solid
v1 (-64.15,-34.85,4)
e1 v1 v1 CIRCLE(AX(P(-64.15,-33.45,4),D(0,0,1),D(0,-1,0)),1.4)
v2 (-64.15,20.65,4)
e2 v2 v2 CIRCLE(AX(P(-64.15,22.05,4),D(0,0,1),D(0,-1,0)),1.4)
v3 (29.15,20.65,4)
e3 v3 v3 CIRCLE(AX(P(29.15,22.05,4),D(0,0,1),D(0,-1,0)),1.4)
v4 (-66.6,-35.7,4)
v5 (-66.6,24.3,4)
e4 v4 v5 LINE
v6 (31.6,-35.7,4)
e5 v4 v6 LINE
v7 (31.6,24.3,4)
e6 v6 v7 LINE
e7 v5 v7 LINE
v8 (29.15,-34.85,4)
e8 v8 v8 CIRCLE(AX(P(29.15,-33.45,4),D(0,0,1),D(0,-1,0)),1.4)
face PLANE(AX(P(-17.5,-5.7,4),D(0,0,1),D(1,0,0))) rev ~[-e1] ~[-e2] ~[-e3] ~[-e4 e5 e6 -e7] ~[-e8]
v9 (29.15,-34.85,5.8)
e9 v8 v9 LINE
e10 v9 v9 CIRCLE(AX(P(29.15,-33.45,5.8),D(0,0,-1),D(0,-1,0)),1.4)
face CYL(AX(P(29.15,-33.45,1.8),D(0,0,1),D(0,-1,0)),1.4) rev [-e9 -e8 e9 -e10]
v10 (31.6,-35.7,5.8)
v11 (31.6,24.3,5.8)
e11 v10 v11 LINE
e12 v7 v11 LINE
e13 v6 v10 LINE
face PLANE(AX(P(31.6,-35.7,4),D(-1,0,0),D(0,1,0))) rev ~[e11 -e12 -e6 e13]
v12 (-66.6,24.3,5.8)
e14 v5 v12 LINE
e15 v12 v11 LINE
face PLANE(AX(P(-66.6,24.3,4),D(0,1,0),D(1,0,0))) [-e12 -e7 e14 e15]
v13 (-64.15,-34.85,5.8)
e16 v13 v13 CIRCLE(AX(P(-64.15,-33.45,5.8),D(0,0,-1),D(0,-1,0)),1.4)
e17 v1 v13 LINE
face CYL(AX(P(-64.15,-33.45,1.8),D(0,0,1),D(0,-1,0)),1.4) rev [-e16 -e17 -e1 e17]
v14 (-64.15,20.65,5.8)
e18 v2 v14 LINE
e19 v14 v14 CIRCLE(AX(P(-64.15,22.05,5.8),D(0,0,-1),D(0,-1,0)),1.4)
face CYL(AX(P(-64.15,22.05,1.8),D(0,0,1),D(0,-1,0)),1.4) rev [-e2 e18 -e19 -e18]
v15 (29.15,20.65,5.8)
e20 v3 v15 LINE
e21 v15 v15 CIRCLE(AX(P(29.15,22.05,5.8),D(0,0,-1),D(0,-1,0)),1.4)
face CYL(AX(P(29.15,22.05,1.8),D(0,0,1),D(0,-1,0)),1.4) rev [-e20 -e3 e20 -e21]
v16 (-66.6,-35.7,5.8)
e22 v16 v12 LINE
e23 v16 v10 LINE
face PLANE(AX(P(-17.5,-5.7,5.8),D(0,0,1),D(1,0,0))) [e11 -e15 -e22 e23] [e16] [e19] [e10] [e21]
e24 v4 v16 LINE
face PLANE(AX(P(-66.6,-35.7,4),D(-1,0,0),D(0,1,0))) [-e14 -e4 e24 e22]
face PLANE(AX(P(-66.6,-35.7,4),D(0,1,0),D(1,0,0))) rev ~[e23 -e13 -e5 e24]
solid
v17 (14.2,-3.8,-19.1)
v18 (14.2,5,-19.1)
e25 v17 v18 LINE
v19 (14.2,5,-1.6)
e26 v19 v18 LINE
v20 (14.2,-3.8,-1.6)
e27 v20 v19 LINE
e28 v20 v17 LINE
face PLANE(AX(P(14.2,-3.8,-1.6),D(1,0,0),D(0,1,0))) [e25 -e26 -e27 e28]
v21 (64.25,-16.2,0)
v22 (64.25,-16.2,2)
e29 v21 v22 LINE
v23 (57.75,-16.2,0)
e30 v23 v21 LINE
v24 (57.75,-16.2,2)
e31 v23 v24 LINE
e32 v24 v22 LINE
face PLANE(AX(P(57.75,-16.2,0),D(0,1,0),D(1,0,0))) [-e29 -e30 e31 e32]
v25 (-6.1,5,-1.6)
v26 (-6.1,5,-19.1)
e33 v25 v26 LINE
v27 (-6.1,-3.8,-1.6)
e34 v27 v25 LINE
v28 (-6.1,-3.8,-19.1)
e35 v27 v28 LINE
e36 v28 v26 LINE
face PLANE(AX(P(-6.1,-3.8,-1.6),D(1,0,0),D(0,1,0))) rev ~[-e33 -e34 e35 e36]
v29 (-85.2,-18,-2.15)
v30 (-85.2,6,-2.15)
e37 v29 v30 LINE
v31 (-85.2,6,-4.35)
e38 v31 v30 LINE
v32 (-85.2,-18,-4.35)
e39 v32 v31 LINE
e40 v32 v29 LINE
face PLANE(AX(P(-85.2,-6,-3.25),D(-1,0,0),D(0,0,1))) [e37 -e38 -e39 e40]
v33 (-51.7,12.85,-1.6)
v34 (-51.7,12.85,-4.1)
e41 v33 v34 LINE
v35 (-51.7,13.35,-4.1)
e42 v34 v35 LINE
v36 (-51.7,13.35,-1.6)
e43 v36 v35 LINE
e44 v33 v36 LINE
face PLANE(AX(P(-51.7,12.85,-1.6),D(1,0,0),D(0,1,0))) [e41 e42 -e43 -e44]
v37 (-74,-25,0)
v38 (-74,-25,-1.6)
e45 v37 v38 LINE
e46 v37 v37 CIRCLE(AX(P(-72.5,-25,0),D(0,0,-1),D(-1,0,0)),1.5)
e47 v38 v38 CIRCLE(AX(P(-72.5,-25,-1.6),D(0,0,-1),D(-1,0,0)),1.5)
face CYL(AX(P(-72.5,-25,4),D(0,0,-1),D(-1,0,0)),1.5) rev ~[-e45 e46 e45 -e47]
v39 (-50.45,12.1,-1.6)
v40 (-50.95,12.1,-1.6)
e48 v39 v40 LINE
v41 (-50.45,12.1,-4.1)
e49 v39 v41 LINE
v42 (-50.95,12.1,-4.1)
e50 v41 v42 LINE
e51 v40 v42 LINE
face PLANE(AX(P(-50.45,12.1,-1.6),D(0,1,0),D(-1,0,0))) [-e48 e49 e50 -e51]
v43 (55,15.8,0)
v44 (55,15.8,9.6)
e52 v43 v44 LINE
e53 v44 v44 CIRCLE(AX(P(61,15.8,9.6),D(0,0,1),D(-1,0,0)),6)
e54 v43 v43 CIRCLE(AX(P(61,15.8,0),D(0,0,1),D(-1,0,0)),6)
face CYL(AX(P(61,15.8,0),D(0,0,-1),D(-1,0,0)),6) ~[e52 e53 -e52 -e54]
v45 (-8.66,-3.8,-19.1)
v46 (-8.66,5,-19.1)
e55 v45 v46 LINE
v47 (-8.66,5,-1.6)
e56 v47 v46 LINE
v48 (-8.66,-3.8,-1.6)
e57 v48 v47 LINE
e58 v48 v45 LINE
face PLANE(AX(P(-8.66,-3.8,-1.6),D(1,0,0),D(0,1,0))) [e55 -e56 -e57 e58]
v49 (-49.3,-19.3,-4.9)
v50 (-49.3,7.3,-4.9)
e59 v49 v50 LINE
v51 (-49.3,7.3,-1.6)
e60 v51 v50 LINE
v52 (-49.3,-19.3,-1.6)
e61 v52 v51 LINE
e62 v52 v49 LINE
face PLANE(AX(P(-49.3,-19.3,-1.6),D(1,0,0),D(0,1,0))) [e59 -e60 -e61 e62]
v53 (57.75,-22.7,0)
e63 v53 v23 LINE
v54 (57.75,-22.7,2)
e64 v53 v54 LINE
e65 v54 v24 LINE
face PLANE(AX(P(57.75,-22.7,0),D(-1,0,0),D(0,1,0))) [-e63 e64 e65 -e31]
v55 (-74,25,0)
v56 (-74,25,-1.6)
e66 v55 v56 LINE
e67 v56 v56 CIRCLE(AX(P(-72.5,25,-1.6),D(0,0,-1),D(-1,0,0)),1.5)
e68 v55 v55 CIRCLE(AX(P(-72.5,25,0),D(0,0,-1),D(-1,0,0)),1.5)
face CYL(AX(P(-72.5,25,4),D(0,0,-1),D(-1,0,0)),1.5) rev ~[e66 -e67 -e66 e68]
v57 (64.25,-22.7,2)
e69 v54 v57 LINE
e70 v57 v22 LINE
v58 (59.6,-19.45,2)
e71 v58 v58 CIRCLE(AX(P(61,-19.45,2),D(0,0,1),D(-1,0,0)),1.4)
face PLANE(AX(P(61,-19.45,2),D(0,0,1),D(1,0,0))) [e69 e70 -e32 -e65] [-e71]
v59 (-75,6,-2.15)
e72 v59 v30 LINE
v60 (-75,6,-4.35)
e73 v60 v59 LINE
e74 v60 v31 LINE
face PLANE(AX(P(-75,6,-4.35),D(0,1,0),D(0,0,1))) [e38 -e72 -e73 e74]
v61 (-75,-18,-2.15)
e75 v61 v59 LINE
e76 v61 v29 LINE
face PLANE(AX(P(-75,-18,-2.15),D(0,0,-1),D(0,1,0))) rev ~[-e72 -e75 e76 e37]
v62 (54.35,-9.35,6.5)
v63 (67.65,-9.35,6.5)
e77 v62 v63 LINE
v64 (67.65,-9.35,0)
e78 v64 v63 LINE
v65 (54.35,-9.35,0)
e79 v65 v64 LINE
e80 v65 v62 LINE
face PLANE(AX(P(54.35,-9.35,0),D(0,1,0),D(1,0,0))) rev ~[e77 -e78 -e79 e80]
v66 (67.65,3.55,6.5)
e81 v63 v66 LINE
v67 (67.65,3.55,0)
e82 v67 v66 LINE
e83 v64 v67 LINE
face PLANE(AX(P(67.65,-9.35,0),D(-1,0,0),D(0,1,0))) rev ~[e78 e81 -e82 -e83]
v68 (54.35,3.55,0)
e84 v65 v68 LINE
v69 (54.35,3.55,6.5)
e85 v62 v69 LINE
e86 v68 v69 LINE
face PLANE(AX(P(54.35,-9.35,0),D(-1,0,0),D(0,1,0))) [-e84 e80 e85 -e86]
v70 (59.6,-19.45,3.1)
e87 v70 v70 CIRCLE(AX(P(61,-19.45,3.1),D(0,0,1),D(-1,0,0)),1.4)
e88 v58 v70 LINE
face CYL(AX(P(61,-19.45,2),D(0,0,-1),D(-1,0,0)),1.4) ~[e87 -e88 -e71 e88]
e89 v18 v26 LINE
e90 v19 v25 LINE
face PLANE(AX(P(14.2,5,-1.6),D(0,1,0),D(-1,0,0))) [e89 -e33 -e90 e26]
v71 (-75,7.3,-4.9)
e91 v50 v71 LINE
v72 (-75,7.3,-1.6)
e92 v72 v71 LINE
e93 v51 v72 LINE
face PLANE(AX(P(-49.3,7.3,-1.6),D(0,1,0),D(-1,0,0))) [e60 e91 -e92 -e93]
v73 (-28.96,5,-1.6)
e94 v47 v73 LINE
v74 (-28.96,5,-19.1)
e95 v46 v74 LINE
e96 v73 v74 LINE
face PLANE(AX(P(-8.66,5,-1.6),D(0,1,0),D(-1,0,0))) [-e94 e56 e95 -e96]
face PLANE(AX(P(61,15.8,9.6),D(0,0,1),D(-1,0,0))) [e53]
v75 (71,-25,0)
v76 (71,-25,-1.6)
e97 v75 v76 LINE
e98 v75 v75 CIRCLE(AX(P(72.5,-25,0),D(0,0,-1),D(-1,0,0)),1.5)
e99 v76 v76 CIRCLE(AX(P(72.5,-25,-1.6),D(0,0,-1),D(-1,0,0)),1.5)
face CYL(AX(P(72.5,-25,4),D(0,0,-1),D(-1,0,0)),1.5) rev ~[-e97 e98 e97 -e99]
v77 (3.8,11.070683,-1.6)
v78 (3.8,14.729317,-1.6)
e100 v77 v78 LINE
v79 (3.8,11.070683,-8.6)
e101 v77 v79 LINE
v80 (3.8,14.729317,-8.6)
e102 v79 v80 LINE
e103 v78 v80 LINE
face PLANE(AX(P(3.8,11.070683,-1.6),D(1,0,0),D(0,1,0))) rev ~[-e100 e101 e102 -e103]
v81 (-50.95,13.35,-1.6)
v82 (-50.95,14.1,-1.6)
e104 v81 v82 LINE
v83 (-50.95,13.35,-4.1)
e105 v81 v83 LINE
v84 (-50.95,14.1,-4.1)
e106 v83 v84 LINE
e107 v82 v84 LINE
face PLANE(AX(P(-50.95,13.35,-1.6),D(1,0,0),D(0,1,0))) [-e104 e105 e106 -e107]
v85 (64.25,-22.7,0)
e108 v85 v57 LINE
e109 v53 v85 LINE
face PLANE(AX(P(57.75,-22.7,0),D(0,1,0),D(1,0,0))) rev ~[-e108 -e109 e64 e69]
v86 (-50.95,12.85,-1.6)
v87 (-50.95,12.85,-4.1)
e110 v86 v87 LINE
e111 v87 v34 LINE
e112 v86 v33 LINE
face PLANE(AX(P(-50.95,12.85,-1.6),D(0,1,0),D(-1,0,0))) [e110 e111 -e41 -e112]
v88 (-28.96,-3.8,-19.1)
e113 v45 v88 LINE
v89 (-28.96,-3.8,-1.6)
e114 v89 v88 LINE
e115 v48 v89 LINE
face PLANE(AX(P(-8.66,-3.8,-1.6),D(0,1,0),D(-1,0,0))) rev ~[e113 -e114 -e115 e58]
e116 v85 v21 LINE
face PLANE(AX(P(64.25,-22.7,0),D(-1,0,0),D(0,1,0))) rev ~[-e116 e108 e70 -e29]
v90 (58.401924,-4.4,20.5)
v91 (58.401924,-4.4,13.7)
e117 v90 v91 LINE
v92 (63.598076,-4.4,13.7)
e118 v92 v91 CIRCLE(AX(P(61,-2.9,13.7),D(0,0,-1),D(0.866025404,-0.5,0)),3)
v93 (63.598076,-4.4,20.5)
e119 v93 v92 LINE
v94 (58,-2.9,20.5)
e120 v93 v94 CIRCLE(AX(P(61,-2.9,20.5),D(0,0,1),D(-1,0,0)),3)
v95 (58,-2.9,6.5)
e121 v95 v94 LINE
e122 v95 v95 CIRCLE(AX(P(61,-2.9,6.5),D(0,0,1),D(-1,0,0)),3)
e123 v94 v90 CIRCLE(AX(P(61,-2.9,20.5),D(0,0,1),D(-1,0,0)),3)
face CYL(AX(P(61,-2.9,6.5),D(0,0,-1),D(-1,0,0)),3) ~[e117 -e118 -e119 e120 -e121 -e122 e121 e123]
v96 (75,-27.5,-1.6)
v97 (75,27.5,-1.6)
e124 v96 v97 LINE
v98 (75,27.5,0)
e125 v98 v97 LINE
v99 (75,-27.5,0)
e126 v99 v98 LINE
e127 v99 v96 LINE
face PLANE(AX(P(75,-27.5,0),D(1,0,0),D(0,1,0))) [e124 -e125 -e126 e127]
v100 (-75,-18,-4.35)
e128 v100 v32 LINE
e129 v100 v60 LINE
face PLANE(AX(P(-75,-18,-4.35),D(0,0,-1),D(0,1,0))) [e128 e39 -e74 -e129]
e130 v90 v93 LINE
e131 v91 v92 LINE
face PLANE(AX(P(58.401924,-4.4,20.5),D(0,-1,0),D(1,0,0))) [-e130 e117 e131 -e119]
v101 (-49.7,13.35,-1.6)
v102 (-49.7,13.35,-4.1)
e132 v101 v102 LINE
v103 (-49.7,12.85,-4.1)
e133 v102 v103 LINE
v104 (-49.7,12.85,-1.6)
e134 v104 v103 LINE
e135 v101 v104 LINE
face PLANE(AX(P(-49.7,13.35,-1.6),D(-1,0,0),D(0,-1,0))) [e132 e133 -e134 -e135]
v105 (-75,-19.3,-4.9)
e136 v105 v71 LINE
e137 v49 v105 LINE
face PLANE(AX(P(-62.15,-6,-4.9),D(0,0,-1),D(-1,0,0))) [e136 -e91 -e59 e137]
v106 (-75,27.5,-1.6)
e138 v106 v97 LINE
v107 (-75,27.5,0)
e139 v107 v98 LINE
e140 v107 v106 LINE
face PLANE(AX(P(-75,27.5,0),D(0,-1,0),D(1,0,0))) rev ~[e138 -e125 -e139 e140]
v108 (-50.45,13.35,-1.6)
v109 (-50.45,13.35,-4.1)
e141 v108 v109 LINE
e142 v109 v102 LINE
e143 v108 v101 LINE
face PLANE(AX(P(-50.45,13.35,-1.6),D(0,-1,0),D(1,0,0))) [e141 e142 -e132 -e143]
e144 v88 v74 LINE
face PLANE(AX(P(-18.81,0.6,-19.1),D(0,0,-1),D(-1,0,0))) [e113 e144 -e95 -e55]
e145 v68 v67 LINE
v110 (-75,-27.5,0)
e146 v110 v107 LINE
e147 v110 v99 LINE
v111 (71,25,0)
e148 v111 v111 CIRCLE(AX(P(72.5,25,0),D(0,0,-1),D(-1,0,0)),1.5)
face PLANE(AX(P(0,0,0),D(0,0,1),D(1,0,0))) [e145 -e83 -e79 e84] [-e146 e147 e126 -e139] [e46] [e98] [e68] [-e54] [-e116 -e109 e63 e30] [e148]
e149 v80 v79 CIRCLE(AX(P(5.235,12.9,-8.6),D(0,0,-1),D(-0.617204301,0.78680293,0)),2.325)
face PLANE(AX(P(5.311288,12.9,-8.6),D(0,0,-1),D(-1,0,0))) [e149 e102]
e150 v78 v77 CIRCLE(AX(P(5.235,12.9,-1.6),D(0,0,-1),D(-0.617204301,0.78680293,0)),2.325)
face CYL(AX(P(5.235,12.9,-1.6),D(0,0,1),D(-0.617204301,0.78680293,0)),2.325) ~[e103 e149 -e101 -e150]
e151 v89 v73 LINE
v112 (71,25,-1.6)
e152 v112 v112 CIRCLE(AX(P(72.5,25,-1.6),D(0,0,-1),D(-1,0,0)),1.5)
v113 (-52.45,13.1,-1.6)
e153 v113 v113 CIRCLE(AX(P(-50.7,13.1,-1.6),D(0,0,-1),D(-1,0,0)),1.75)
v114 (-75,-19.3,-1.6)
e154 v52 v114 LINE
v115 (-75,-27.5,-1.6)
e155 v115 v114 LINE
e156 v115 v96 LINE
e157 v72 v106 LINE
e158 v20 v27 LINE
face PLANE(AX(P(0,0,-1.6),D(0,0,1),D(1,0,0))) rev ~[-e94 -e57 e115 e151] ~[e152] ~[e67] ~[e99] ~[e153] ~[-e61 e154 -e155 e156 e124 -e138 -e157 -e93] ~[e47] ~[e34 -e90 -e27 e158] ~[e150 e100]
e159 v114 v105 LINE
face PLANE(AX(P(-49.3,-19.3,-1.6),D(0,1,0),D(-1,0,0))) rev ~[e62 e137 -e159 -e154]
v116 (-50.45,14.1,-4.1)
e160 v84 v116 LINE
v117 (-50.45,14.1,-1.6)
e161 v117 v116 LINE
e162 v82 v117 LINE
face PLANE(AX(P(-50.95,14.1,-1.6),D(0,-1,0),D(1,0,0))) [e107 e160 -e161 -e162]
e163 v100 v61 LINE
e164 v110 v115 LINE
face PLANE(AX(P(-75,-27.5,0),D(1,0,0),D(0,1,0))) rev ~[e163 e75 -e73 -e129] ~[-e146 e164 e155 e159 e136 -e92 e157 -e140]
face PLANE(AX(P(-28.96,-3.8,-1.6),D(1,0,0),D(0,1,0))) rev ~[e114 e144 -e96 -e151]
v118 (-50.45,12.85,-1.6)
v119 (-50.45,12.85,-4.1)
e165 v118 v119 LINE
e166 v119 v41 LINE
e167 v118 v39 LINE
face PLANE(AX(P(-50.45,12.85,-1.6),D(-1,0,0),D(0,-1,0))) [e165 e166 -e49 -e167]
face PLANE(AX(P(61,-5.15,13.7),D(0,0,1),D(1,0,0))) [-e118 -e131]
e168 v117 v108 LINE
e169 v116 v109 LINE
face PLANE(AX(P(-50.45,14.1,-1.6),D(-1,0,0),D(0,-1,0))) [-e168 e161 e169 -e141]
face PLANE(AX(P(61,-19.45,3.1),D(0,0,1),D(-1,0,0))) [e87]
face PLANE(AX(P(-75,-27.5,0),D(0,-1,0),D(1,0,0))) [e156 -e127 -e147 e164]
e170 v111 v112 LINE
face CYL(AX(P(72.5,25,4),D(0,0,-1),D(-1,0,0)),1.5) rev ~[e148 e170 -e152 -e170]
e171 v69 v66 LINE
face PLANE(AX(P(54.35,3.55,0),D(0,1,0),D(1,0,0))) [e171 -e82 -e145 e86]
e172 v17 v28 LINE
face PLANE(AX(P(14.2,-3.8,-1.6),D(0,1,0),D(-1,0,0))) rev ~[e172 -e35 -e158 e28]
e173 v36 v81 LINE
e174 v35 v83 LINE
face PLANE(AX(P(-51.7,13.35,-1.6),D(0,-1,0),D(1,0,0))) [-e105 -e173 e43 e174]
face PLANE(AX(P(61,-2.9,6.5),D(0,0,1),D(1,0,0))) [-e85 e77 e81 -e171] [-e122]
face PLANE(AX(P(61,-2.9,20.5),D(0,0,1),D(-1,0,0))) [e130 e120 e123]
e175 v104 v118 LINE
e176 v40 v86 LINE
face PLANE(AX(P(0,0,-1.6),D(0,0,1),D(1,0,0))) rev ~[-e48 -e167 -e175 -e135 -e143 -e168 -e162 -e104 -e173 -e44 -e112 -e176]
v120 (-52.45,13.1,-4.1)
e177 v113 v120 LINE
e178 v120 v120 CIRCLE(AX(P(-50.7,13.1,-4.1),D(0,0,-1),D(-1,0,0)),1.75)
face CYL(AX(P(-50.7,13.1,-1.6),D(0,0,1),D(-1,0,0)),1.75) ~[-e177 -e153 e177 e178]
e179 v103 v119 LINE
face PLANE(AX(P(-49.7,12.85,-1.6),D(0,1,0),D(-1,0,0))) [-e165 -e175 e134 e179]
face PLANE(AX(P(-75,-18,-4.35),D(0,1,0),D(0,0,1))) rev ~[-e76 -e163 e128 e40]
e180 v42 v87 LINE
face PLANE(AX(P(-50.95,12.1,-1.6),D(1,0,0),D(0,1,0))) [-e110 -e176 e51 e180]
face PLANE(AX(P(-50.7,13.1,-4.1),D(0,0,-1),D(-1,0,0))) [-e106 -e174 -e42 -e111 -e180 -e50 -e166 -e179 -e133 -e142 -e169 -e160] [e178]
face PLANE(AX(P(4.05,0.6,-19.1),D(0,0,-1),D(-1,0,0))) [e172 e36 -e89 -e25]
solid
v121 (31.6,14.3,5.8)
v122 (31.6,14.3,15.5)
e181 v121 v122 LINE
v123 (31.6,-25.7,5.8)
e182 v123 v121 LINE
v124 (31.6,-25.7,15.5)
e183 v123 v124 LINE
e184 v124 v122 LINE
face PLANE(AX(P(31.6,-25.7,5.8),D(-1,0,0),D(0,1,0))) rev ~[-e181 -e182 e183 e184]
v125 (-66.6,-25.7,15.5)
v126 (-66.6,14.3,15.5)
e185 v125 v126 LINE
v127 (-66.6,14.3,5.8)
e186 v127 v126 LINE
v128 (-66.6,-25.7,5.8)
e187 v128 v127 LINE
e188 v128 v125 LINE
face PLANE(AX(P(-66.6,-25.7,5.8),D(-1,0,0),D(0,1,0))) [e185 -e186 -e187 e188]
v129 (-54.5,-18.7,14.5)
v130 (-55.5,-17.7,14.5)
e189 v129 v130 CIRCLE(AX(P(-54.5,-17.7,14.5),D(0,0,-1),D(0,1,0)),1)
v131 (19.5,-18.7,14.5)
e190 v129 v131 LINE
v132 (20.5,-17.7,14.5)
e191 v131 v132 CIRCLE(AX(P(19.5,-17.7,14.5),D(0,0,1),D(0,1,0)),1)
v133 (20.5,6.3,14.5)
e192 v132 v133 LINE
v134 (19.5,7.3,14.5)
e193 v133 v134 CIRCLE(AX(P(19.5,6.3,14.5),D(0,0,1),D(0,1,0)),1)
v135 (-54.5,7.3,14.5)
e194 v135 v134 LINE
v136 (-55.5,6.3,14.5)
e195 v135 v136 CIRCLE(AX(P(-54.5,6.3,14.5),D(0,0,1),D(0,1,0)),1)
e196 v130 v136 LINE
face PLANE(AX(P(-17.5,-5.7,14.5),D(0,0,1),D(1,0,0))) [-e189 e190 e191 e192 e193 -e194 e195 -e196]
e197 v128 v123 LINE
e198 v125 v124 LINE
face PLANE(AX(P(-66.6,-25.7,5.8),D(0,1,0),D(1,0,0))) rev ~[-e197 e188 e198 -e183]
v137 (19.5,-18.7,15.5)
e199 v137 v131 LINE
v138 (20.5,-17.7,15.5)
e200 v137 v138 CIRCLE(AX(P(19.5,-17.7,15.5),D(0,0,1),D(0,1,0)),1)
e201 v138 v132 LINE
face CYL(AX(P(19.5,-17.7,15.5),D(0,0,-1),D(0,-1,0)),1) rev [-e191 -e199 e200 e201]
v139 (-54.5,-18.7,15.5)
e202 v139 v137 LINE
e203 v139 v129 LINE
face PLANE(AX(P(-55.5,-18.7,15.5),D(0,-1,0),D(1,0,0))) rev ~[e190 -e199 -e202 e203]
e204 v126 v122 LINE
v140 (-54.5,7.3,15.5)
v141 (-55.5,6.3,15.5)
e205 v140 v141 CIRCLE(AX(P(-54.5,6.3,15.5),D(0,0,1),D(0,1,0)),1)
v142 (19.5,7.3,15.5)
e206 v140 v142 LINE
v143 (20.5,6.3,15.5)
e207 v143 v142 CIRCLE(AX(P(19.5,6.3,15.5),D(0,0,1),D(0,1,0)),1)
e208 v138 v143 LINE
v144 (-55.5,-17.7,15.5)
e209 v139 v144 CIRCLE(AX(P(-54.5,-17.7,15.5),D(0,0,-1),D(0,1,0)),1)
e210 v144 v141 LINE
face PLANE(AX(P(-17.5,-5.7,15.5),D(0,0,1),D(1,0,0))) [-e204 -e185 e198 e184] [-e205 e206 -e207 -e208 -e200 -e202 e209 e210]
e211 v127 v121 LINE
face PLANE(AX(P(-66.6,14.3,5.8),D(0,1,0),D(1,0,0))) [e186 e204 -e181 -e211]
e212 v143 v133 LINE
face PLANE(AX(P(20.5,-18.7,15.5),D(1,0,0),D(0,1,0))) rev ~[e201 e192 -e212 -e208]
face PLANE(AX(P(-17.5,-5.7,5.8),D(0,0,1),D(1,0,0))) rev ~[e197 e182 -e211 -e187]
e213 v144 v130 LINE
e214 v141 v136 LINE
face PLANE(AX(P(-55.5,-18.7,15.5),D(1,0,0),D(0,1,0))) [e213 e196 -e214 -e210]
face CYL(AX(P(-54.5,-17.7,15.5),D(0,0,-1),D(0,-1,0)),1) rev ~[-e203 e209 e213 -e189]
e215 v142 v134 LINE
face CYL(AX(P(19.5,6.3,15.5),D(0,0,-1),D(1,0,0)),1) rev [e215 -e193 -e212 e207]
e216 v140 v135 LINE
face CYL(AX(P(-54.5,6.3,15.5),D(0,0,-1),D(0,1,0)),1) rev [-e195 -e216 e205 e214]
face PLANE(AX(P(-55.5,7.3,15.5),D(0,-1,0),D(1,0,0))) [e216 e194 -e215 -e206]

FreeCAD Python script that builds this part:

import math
import FreeCAD as App
import Part
import Sketcher
from FreeCAD import Vector
Q = App.Units.Quantity


def edges_at(feature, points):
    """Names of the edges that pass closest to the given points."""
    edges = feature.Shape.Edges
    near = lambda p: min(range(len(edges)), key=lambda i: edges[i].distToShape(Part.Vertex(*p))[0])
    return sorted({f"Edge{near(p) + 1}" for p in points})

doc = App.newDocument("Part")
body = doc.addObject("PartDesign::Body", "Body")

sketch1 = body.newObject("Sketcher::SketchObject", "Sketch")
sketch1.AttachmentSupport = (doc.getObject("XY_Plane"), [""])
sketch1.MapMode = "FlatFace"
sketch1.addGeometry(Part.LineSegment(Vector(-75, 28, 0), Vector(-75, -28, 0)), False)
sketch1.addGeometry(Part.LineSegment(Vector(-75, -28, 0), Vector(75, -28, 0)), False)
sketch1.addGeometry(Part.LineSegment(Vector(75, -28, 0), Vector(75, 28, 0)), False)
sketch1.addGeometry(Part.LineSegment(Vector(75, 28, 0), Vector(-75, 28, 0)), False)
sketch1.addConstraint(Sketcher.Constraint("Coincident", 0, 2, 1, 1))
sketch1.addConstraint(Sketcher.Constraint("Coincident", 1, 2, 2, 1))
sketch1.addConstraint(Sketcher.Constraint("Coincident", 2, 2, 3, 1))
sketch1.addConstraint(Sketcher.Constraint("Coincident", 3, 2, 0, 1))
sketch1.addConstraint(Sketcher.Constraint("Vertical", 0))
sketch1.addConstraint(Sketcher.Constraint("Horizontal", 1))
sketch1.addConstraint(Sketcher.Constraint("Vertical", 2))
sketch1.addConstraint(Sketcher.Constraint("Horizontal", 3))
sketch1.addConstraint(Sketcher.Constraint("Symmetric", 0, 2, 2, 2, -1, 1))
sketch1.addConstraint(Sketcher.Constraint("DistanceX", 1, 1, 1, 2, 150.0))
sketch1.addConstraint(Sketcher.Constraint("DistanceY", 0, 2, 0, 1, 55.0))
pad1 = body.newObject("PartDesign::Pad", "Pad")
pad1.Profile = sketch1
pad1.Length = 1.6
pad1.Reversed = True

sketch2 = body.newObject("Sketcher::SketchObject", "Sketch001")
sketch2.AttachmentSupport = (doc.getObject("XY_Plane"), [""])
sketch2.MapMode = "FlatFace"
sketch2.addGeometry(Part.Circle(Vector(-72.5, 25, 0), Vector(0, 0, 1), 1.5), False)
sketch2.addGeometry(Part.Circle(Vector(72.5, 25, 0), Vector(0, 0, 1), 1.5), False)
sketch2.addGeometry(Part.Circle(Vector(72.5, -25, 0), Vector(0, 0, 1), 1.5), False)
sketch2.addGeometry(Part.Circle(Vector(-72.5, -25, 0), Vector(0, 0, 1), 1.5), False)
sketch2.addConstraint(Sketcher.Constraint("Equal", 0, 1))
sketch2.addConstraint(Sketcher.Constraint("Equal", 1, 2))
sketch2.addConstraint(Sketcher.Constraint("Equal", 2, 3))
sketch2.addConstraint(Sketcher.Constraint("Symmetric", 0, 3, 2, 3, -1, 1))
sketch2.addConstraint(Sketcher.Constraint("Symmetric", 1, 3, 3, 3, -1, 1))
sketch2.addConstraint(Sketcher.Constraint("Symmetric", 0, 3, 1, 3, -2))
sketch2.addConstraint(Sketcher.Constraint("Diameter", 0, 3.0))
sketch2.addConstraint(Sketcher.Constraint("DistanceY", -1, 1, 0, 3, 25.0))
sketch2.addConstraint(Sketcher.Constraint("DistanceX", 0, 3, 1, 3, 145.0))
doc.recompute()
hole = body.newObject("PartDesign::Hole", "Hole")
hole.Profile = sketch2
hole.ThreadType = "None"
hole.Diameter = 3
hole.DepthType = "Dimension"
hole.Depth = 4
hole.DrillPoint = "Angled"
hole.DrillPointAngle = 118

sketch3 = body.newObject("Sketcher::SketchObject", "Sketch002")
sketch3.AttachmentSupport = (doc.getObject("XY_Plane"), [""])
sketch3.MapMode = "FlatFace"
sketch3.AttachmentOffset = App.Placement(Vector(0, 0, -1.6), App.Rotation())
sketch3.addGeometry(Part.LineSegment(Vector(14, 5, 0), Vector(14, -4, 0)), False)
sketch3.addGeometry(Part.LineSegment(Vector(14, -4, 0), Vector(-6, -4, 0)), False)
sketch3.addGeometry(Part.LineSegment(Vector(-6, -4, 0), Vector(-6, 5, 0)), False)
sketch3.addGeometry(Part.LineSegment(Vector(-6, 5, 0), Vector(14, 5, 0)), False)
sketch3.addConstraint(Sketcher.Constraint("Coincident", 0, 2, 1, 1))
sketch3.addConstraint(Sketcher.Constraint("Coincident", 1, 2, 2, 1))
sketch3.addConstraint(Sketcher.Constraint("Coincident", 2, 2, 3, 1))
sketch3.addConstraint(Sketcher.Constraint("Coincident", 3, 2, 0, 1))
sketch3.addConstraint(Sketcher.Constraint("Vertical", 0))
sketch3.addConstraint(Sketcher.Constraint("Horizontal", 1))
sketch3.addConstraint(Sketcher.Constraint("Vertical", 2))
sketch3.addConstraint(Sketcher.Constraint("Horizontal", 3))
sketch3.addConstraint(Sketcher.Constraint("DistanceX", 1, 2, 1, 1, 20.3))
sketch3.addConstraint(Sketcher.Constraint("DistanceY", 0, 2, 0, 1, 8.8))
sketch3.addConstraint(Sketcher.Constraint("DistanceY", -1, 1, 2, 2, 5.0))
sketch3.addConstraint(Sketcher.Constraint("DistanceX", -1, 1, 0, 2, 14.2))
pad2 = body.newObject("PartDesign::Pad", "Pad001")
pad2.Profile = sketch3
pad2.Length = 17.5
pad2.Reversed = True
doc.recompute()

linearpattern = body.newObject("PartDesign::LinearPattern", "LinearPattern")
linearpattern.Originals = [pad2]
linearpattern.Direction = (doc.getObject("X_Axis"), [""])
linearpattern.Mode = "offset"
linearpattern.Offset = 22.86
linearpattern.Occurrences = 2
linearpattern.Reversed = True
body.Tip = linearpattern
body2 = doc.addObject("PartDesign::Body", "Body001")

sketch4 = body2.newObject("Sketcher::SketchObject", "Sketch003")
sketch4.AttachmentSupport = (doc.getObject("XY_Plane001"), [""])
sketch4.MapMode = "FlatFace"
sketch4.AttachmentOffset = App.Placement(Vector(0, 0, -1.6), App.Rotation())
sketch4.addGeometry(Part.LineSegment(Vector(-49, 7, 0), Vector(-49, -19, 0)), False)
sketch4.addGeometry(Part.LineSegment(Vector(-49, -19, 0), Vector(-75, -19, 0)), False)
sketch4.addGeometry(Part.LineSegment(Vector(-75, -19, 0), Vector(-75, 7, 0)), False)
sketch4.addGeometry(Part.LineSegment(Vector(-75, 7, 0), Vector(-49, 7, 0)), False)
sketch4.addConstraint(Sketcher.Constraint("Coincident", 0, 2, 1, 1))
sketch4.addConstraint(Sketcher.Constraint("Coincident", 1, 2, 2, 1))
sketch4.addConstraint(Sketcher.Constraint("Coincident", 2, 2, 3, 1))
sketch4.addConstraint(Sketcher.Constraint("Coincident", 3, 2, 0, 1))
sketch4.addConstraint(Sketcher.Constraint("Vertical", 0))
sketch4.addConstraint(Sketcher.Constraint("Horizontal", 1))
sketch4.addConstraint(Sketcher.Constraint("Vertical", 2))
sketch4.addConstraint(Sketcher.Constraint("Horizontal", 3))
sketch4.addConstraint(Sketcher.Constraint("DistanceX", 1, 2, 1, 1, 25.7))
sketch4.addConstraint(Sketcher.Constraint("DistanceY", 0, 2, 0, 1, 26.6))
sketch4.addConstraint(Sketcher.Constraint("DistanceX", 1, 2, -1, 1, 75.0))
sketch4.addConstraint(Sketcher.Constraint("DistanceY", 0, 2, -1, 1, 19.3))
pad3 = body2.newObject("PartDesign::Pad", "Pad002")
pad3.Profile = sketch4
pad3.Length = 3.3
pad3.Reversed = True
doc.recompute()

boolean = body.newObject("PartDesign::Boolean", "Boolean")
boolean.Type = "Fuse"
boolean.addObjects([body2])

sketch5 = body.newObject("Sketcher::SketchObject", "Sketch004")
sketch5.AttachmentSupport = (doc.getObject("YZ_Plane"), [""])
sketch5.MapMode = "FlatFace"
sketch5.AttachmentOffset = App.Placement(Vector(0, 0, -75), App.Rotation())
sketch5.addGeometry(Part.LineSegment(Vector(6, -4.3, 0), Vector(-18, -4.3, 0)), False)
sketch5.addGeometry(Part.LineSegment(Vector(-18, -4.3, 0), Vector(-18, -2.1, 0)), False)
sketch5.addGeometry(Part.LineSegment(Vector(-18, -2.1, 0), Vector(6, -2.1, 0)), False)
sketch5.addGeometry(Part.LineSegment(Vector(6, -2.1, 0), Vector(6, -4.3, 0)), False)
sketch5.addConstraint(Sketcher.Constraint("Coincident", 0, 2, 1, 1))
sketch5.addConstraint(Sketcher.Constraint("Coincident", 1, 2, 2, 1))
sketch5.addConstraint(Sketcher.Constraint("Coincident", 2, 2, 3, 1))
sketch5.addConstraint(Sketcher.Constraint("Coincident", 3, 2, 0, 1))
sketch5.addConstraint(Sketcher.Constraint("Horizontal", 0))
sketch5.addConstraint(Sketcher.Constraint("Vertical", 1))
sketch5.addConstraint(Sketcher.Constraint("Horizontal", 2))
sketch5.addConstraint(Sketcher.Constraint("Vertical", 3))
sketch5.addConstraint(Sketcher.Constraint("DistanceX", 0, 2, 0, 1, 24.0))
sketch5.addConstraint(Sketcher.Constraint("DistanceY", 1, 1, 1, 2, 2.2))
sketch5.addConstraint(Sketcher.Constraint("DistanceX", 0, 2, -1, 1, 18.0))
sketch5.addConstraint(Sketcher.Constraint("DistanceY", 0, 2, -1, 1, 4.35))
pad4 = body.newObject("PartDesign::Pad", "Pad003")
pad4.Profile = sketch5
pad4.Length = 10.2
pad4.Reversed = True

sketch6 = body.newObject("Sketcher::SketchObject", "Sketch005")
sketch6.AttachmentSupport = (doc.getObject("XY_Plane"), [""])
sketch6.MapMode = "FlatFace"
sketch6.AttachmentOffset = App.Placement(Vector(0, 0, -1.6), App.Rotation())
sketch6.addGeometry(Part.Circle(Vector(-50.7, 13.1, 0), Vector(0, 0, 1), 1.8), False)
sketch6.addGeometry(Part.LineSegment(Vector(-51.7, 12.8, 0), Vector(-51, 12.8, 0)), False)
sketch6.addGeometry(Part.LineSegment(Vector(-51, 12.8, 0), Vector(-51, 12.1, 0)), False)
sketch6.addGeometry(Part.LineSegment(Vector(-51, 12.1, 0), Vector(-50.5, 12.1, 0)), False)
sketch6.addGeometry(Part.LineSegment(Vector(-50.5, 12.1, 0), Vector(-50.5, 12.8, 0)), False)
sketch6.addGeometry(Part.LineSegment(Vector(-50.5, 12.8, 0), Vector(-49.7, 12.8, 0)), False)
sketch6.addGeometry(Part.LineSegment(Vector(-49.7, 12.8, 0), Vector(-49.7, 13.3, 0)), False)
sketch6.addGeometry(Part.LineSegment(Vector(-49.7, 13.3, 0), Vector(-50.5, 13.3, 0)), False)
sketch6.addGeometry(Part.LineSegment(Vector(-50.5, 13.3, 0), Vector(-50.5, 14.1, 0)), False)
sketch6.addGeometry(Part.LineSegment(Vector(-50.5, 14.1, 0), Vector(-51, 14.1, 0)), False)
sketch6.addGeometry(Part.LineSegment(Vector(-51, 14.1, 0), Vector(-51, 13.3, 0)), False)
sketch6.addGeometry(Part.LineSegment(Vector(-51, 13.3, 0), Vector(-51.7, 13.3, 0)), False)
sketch6.addGeometry(Part.LineSegment(Vector(-51.7, 13.3, 0), Vector(-51.7, 12.8, 0)), False)
sketch6.addConstraint(Sketcher.Constraint("Coincident", 1, 2, 2, 1))
sketch6.addConstraint(Sketcher.Constraint("Coincident", 2, 2, 3, 1))
sketch6.addConstraint(Sketcher.Constraint("Coincident", 3, 2, 4, 1))
sketch6.addConstraint(Sketcher.Constraint("Coincident", 4, 2, 5, 1))
sketch6.addConstraint(Sketcher.Constraint("Coincident", 5, 2, 6, 1))
sketch6.addConstraint(Sketcher.Constraint("Coincident", 6, 2, 7, 1))
sketch6.addConstraint(Sketcher.Constraint("Coincident", 7, 2, 8, 1))
sketch6.addConstraint(Sketcher.Constraint("Coincident", 8, 2, 9, 1))
sketch6.addConstraint(Sketcher.Constraint("Coincident", 9, 2, 10, 1))
sketch6.addConstraint(Sketcher.Constraint("Coincident", 10, 2, 11, 1))
sketch6.addConstraint(Sketcher.Constraint("Coincident", 11, 2, 12, 1))
sketch6.addConstraint(Sketcher.Constraint("Coincident", 12, 2, 1, 1))
sketch6.addConstraint(Sketcher.Constraint("Horizontal", 1))
sketch6.addConstraint(Sketcher.Constraint("Vertical", 2))
sketch6.addConstraint(Sketcher.Constraint("Horizontal", 3))
sketch6.addConstraint(Sketcher.Constraint("Vertical", 4))
sketch6.addConstraint(Sketcher.Constraint("Horizontal", 5))
sketch6.addConstraint(Sketcher.Constraint("Vertical", 6))
sketch6.addConstraint(Sketcher.Constraint("Horizontal", 7))
sketch6.addConstraint(Sketcher.Constraint("Vertical", 8))
sketch6.addConstraint(Sketcher.Constraint("Horizontal", 9))
sketch6.addConstraint(Sketcher.Constraint("Vertical", 10))
sketch6.addConstraint(Sketcher.Constraint("Horizontal", 11))
sketch6.addConstraint(Sketcher.Constraint("Vertical", 12))
sketch6.addConstraint(Sketcher.Constraint("Horizontal", 1, 2, 4, 2))
sketch6.addConstraint(Sketcher.Constraint("Horizontal", 7, 2, 10, 2))
sketch6.addConstraint(Sketcher.Constraint("Vertical", 4, 2, 7, 2))
sketch6.addConstraint(Sketcher.Constraint("Vertical", 2, 2, 9, 2))
sketch6.addConstraint(Sketcher.Constraint("Equal", 1, 5))
sketch6.addConstraint(Sketcher.Constraint("Equal", 11, 2))
sketch6.addConstraint(Sketcher.Constraint("Equal", 9, 6))
sketch6.addConstraint(Sketcher.Constraint("Equal", 4, 8))
sketch6.addConstraint(Sketcher.Constraint("Diameter", 0, 3.5))
sketch6.addConstraint(Sketcher.Constraint("DistanceX", 3, 1, 3, 2, 0.5))
sketch6.addConstraint(Sketcher.Constraint("DistanceY", 2, 2, 0, 3, 1.0))
sketch6.addConstraint(Sketcher.Constraint("DistanceX", 0, 3, 5, 2, 1.0))
sketch6.addConstraint(Sketcher.Constraint("DistanceY", 0, 3, 8, 2, 1.0))
sketch6.addConstraint(Sketcher.Constraint("DistanceX", 0, 3, -1, 1, 50.7))
sketch6.addConstraint(Sketcher.Constraint("DistanceY", -1, 1, 0, 3, 13.1))
pad5 = body.newObject("PartDesign::Pad", "Pad004")
pad5.Profile = sketch6
pad5.Length = 2.5
pad5.Reversed = True

sketch7 = body.newObject("Sketcher::SketchObject", "Sketch006")
sketch7.AttachmentSupport = (doc.getObject("XY_Plane"), [""])
sketch7.MapMode = "FlatFace"
sketch7.AttachmentOffset = App.Placement(Vector(0, 0, -1.6), App.Rotation())
sketch7.addGeometry(Part.LineSegment(Vector(3.8, 11.1, 0), Vector(3.8, 14.7, 0)), False)
sketch7.addGeometry(Part.ArcOfCircle(Part.Circle(Vector(5.2, 12.9, 0), Vector(0, 0, 1), 2.3), math.radians(-128), math.radians(128)), False)
sketch7.addConstraint(Sketcher.Constraint("Coincident", 0, 1, 1, 1))
sketch7.addConstraint(Sketcher.Constraint("Coincident", 1, 2, 0, 2))
sketch7.addConstraint(Sketcher.Constraint("Vertical", 0))
sketch7.addConstraint(Sketcher.Constraint("Radius", 1, 2.325))
sketch7.addConstraint(Sketcher.Constraint("DistanceY", -1, 1, 1, 3, 12.9))
sketch7.addConstraint(Sketcher.Constraint("DistanceX", -1, 1, 0, 1, 3.8))
sketch7.addConstraint(Sketcher.Constraint("DistanceX", -1, 1, 1, 3, 5.235))
pad6 = body.newObject("PartDesign::Pad", "Pad005")
pad6.Profile = sketch7
pad6.Length = 7
pad6.Reversed = True

sketch8 = body.newObject("Sketcher::SketchObject", "Sketch007")
sketch8.AttachmentSupport = (doc.getObject("XY_Plane"), [""])
sketch8.MapMode = "FlatFace"
sketch8.addGeometry(Part.Circle(Vector(61, 16, 0), Vector(0, 0, 1), 6), False)
sketch8.addConstraint(Sketcher.Constraint("Diameter", 0, 12.0))
sketch8.addConstraint(Sketcher.Constraint("DistanceX", -1, 1, 0, 3, 61.0))
sketch8.addConstraint(Sketcher.Constraint("DistanceY", -1, 1, 0, 3, 15.8))
pad7 = body.newObject("PartDesign::Pad", "Pad006")
pad7.Profile = sketch8
pad7.Length = 9.6

sketch9 = body.newObject("Sketcher::SketchObject", "Sketch008")
sketch9.AttachmentSupport = (doc.getObject("XY_Plane"), [""])
sketch9.MapMode = "FlatFace"
sketch9.addGeometry(Part.LineSegment(Vector(54, 4, 0), Vector(54, -9, 0)), False)
sketch9.addGeometry(Part.LineSegment(Vector(54, -9, 0), Vector(68, -9, 0)), False)
sketch9.addGeometry(Part.LineSegment(Vector(68, -9, 0), Vector(68, 4, 0)), False)
sketch9.addGeometry(Part.LineSegment(Vector(68, 4, 0), Vector(54, 4, 0)), False)
sketch9.addConstraint(Sketcher.Constraint("Coincident", 0, 2, 1, 1))
sketch9.addConstraint(Sketcher.Constraint("Coincident", 1, 2, 2, 1))
sketch9.addConstraint(Sketcher.Constraint("Coincident", 2, 2, 3, 1))
sketch9.addConstraint(Sketcher.Constraint("Coincident", 3, 2, 0, 1))
sketch9.addConstraint(Sketcher.Constraint("Vertical", 0))
sketch9.addConstraint(Sketcher.Constraint("Horizontal", 1))
sketch9.addConstraint(Sketcher.Constraint("Vertical", 2))
sketch9.addConstraint(Sketcher.Constraint("Horizontal", 3))
sketch9.addConstraint(Sketcher.Constraint("DistanceX", 1, 1, 1, 2, 13.3))
sketch9.addConstraint(Sketcher.Constraint("DistanceY", 0, 2, 0, 1, 12.9))
sketch9.addConstraint(Sketcher.Constraint("DistanceX", -1, 1, 0, 2, 54.35))
sketch9.addConstraint(Sketcher.Constraint("DistanceY", 0, 2, -1, 1, 9.35))
pad8 = body.newObject("PartDesign::Pad", "Pad007")
pad8.Profile = sketch9
pad8.Length = 6.5

sketch10 = body.newObject("Sketcher::SketchObject", "Sketch009")
sketch10.AttachmentSupport = (doc.getObject("XY_Plane"), [""])
sketch10.MapMode = "FlatFace"
sketch10.AttachmentOffset = App.Placement(Vector(0, 0, 6.5), App.Rotation())
sketch10.addGeometry(Part.Circle(Vector(61, -2.9, 0), Vector(0, 0, 1), 3), False)
sketch10.addConstraint(Sketcher.Constraint("Diameter", 0, 6.0))
sketch10.addConstraint(Sketcher.Constraint("DistanceX", -1, 1, 0, 3, 61.0))
sketch10.addConstraint(Sketcher.Constraint("DistanceY", 0, 3, -1, 1, 2.9))
pad9 = body.newObject("PartDesign::Pad", "Pad008")
pad9.Profile = sketch10
pad9.Length = 14

sketch11 = body.newObject("Sketcher::SketchObject", "Sketch010")
sketch11.AttachmentSupport = (doc.getObject("XY_Plane"), [""])
sketch11.MapMode = "FlatFace"
sketch11.AttachmentOffset = App.Placement(Vector(0, 0, 20.5), App.Rotation())
sketch11.addGeometry(Part.LineSegment(Vector(58.4, -4.4, 0), Vector(58.4, -5.9, 0)), False)
sketch11.addGeometry(Part.LineSegment(Vector(58.4, -5.9, 0), Vector(63.6, -5.9, 0)), False)
sketch11.addGeometry(Part.LineSegment(Vector(63.6, -5.9, 0), Vector(63.6, -4.4, 0)), False)
sketch11.addGeometry(Part.LineSegment(Vector(63.6, -4.4, 0), Vector(58.4, -4.4, 0)), False)
sketch11.addConstraint(Sketcher.Constraint("Coincident", 0, 2, 1, 1))
sketch11.addConstraint(Sketcher.Constraint("Coincident", 1, 2, 2, 1))
sketch11.addConstraint(Sketcher.Constraint("Coincident", 2, 2, 3, 1))
sketch11.addConstraint(Sketcher.Constraint("Coincident", 3, 2, 0, 1))
sketch11.addConstraint(Sketcher.Constraint("Vertical", 0))
sketch11.addConstraint(Sketcher.Constraint("Horizontal", 1))
sketch11.addConstraint(Sketcher.Constraint("Vertical", 2))
sketch11.addConstraint(Sketcher.Constraint("Horizontal", 3))
sketch11.addConstraint(Sketcher.Constraint("DistanceY", 0, 2, 0, 1, 1.5))
sketch11.addConstraint(Sketcher.Constraint("DistanceY", 0, 2, -1, 1, 5.9))
sketch11.addConstraint(Sketcher.Constraint("DistanceX", 1, 1, 1, 2, 5.196152))
sketch11.addConstraint(Sketcher.Constraint("DistanceX", -1, 1, 0, 2, 58.401924))
pocket1 = body.newObject("PartDesign::Pocket", "Pocket")
pocket1.Profile = sketch11
pocket1.Length = 6.8

sketch12 = body.newObject("Sketcher::SketchObject", "Sketch011")
sketch12.AttachmentSupport = (doc.getObject("XY_Plane"), [""])
sketch12.MapMode = "FlatFace"
sketch12.addGeometry(Part.LineSegment(Vector(58, -16, 0), Vector(58, -23, 0)), False)
sketch12.addGeometry(Part.LineSegment(Vector(58, -23, 0), Vector(64, -23, 0)), False)
sketch12.addGeometry(Part.LineSegment(Vector(64, -23, 0), Vector(64, -16, 0)), False)
sketch12.addGeometry(Part.LineSegment(Vector(64, -16, 0), Vector(58, -16, 0)), False)
sketch12.addConstraint(Sketcher.Constraint("Coincident", 0, 2, 1, 1))
sketch12.addConstraint(Sketcher.Constraint("Coincident", 1, 2, 2, 1))
sketch12.addConstraint(Sketcher.Constraint("Coincident", 2, 2, 3, 1))
sketch12.addConstraint(Sketcher.Constraint("Coincident", 3, 2, 0, 1))
sketch12.addConstraint(Sketcher.Constraint("Vertical", 0))
sketch12.addConstraint(Sketcher.Constraint("Horizontal", 1))
sketch12.addConstraint(Sketcher.Constraint("Vertical", 2))
sketch12.addConstraint(Sketcher.Constraint("Horizontal", 3))
sketch12.addConstraint(Sketcher.Constraint("Equal", 3, 0))
sketch12.addConstraint(Sketcher.Constraint("DistanceX", 1, 1, 1, 2, 6.5))
sketch12.addConstraint(Sketcher.Constraint("DistanceY", 0, 2, -1, 1, 22.7))
sketch12.addConstraint(Sketcher.Constraint("DistanceX", -1, 1, 0, 2, 57.75))
pad10 = body.newObject("PartDesign::Pad", "Pad009")
pad10.Profile = sketch12
pad10.Length = 2

sketch13 = body.newObject("Sketcher::SketchObject", "Sketch012")
sketch13.AttachmentSupport = (doc.getObject("XY_Plane"), [""])
sketch13.MapMode = "FlatFace"
sketch13.AttachmentOffset = App.Placement(Vector(0, 0, 2), App.Rotation())
sketch13.addGeometry(Part.Circle(Vector(61, -19.4, 0), Vector(0, 0, 1), 1.4), False)
sketch13.addConstraint(Sketcher.Constraint("Diameter", 0, 2.8))
sketch13.addConstraint(Sketcher.Constraint("DistanceX", -1, 1, 0, 3, 61.0))
sketch13.addConstraint(Sketcher.Constraint("DistanceY", 0, 3, -1, 1, 19.45))
pad11 = body.newObject("PartDesign::Pad", "Pad010")
pad11.Profile = sketch13
pad11.Length = 1.1
body3 = doc.addObject("PartDesign::Body", "Body002")

sketch14 = body3.newObject("Sketcher::SketchObject", "Sketch013")
sketch14.AttachmentSupport = (doc.getObject("XY_Plane002"), [""])
sketch14.MapMode = "FlatFace"
sketch14.AttachmentOffset = App.Placement(Vector(0, 0, 4), App.Rotation())
sketch14.addGeometry(Part.LineSegment(Vector(-67, 24, 0), Vector(-67, -36, 0)), False)
sketch14.addGeometry(Part.LineSegment(Vector(-67, -36, 0), Vector(32, -36, 0)), False)
sketch14.addGeometry(Part.LineSegment(Vector(32, -36, 0), Vector(32, 24, 0)), False)
sketch14.addGeometry(Part.LineSegment(Vector(32, 24, 0), Vector(-67, 24, 0)), False)
sketch14.addConstraint(Sketcher.Constraint("Coincident", 0, 2, 1, 1))
sketch14.addConstraint(Sketcher.Constraint("Coincident", 1, 2, 2, 1))
sketch14.addConstraint(Sketcher.Constraint("Coincident", 2, 2, 3, 1))
sketch14.addConstraint(Sketcher.Constraint("Coincident", 3, 2, 0, 1))
sketch14.addConstraint(Sketcher.Constraint("Vertical", 0))
sketch14.addConstraint(Sketcher.Constraint("Horizontal", 1))
sketch14.addConstraint(Sketcher.Constraint("Vertical", 2))
sketch14.addConstraint(Sketcher.Constraint("Horizontal", 3))
sketch14.addConstraint(Sketcher.Constraint("DistanceY", 0, 2, 0, 1, 60.0))
sketch14.addConstraint(Sketcher.Constraint("DistanceX", 1, 1, 1, 2, 98.2))
sketch14.addConstraint(Sketcher.Constraint("DistanceX", 0, 2, -1, 1, 66.6))
sketch14.addConstraint(Sketcher.Constraint("DistanceY", 0, 2, -1, 1, 35.7))
pad12 = body3.newObject("PartDesign::Pad", "Pad011")
pad12.Profile = sketch14
pad12.Length = 1.8

sketch15 = body3.newObject("Sketcher::SketchObject", "Sketch014")
sketch15.AttachmentSupport = (doc.getObject("YZ_Plane002"), [""])
sketch15.MapMode = "FlatFace"
sketch15.AttachmentOffset = App.Placement(Vector(0, 0, -64.15), App.Rotation())
sketch15.addGeometry(Part.LineSegment(Vector(22.1, 1, 0), Vector(22.1, 5.8, 0)), False)
sketch15.addGeometry(Part.LineSegment(Vector(22.1, 5.8, 0), Vector(20.6, 5.8, 0)), False)
sketch15.addGeometry(Part.LineSegment(Vector(20.6, 5.8, 0), Vector(20.6, 1.8, 0)), False)
sketch15.addGeometry(Part.LineSegment(Vector(20.6, 1.8, 0), Vector(22.1, 1, 0)), False)
sketch15.addGeometry(Part.LineSegment(Vector(22.1, 5.8, 0), Vector(22.1, 1, 0)), True)
sketch15.addConstraint(Sketcher.Constraint("Coincident", 0, 2, 1, 1))
sketch15.addConstraint(Sketcher.Constraint("Coincident", 1, 2, 2, 1))
sketch15.addConstraint(Sketcher.Constraint("Coincident", 2, 2, 3, 1))
sketch15.addConstraint(Sketcher.Constraint("Coincident", 3, 2, 0, 1))
sketch15.addConstraint(Sketcher.Constraint("Vertical", 0))
sketch15.addConstraint(Sketcher.Constraint("Horizontal", 1))
sketch15.addConstraint(Sketcher.Constraint("Vertical", 2))
sketch15.addConstraint(Sketcher.Constraint("Vertical", 4))
sketch15.addConstraint(Sketcher.Constraint("Coincident", 4, 1, 0, 2))
sketch15.addConstraint(Sketcher.Constraint("Equal", 0, 4))
sketch15.addConstraint(Sketcher.Constraint("DistanceY", 2, 2, 2, 1, 4.0))
sketch15.addConstraint(Sketcher.Constraint("Angle", 3, Q("-31 deg")))
sketch15.addConstraint(Sketcher.Constraint("DistanceX", 1, 2, 1, 1, 1.4))
sketch15.addConstraint(Sketcher.Constraint("DistanceY", -1, 1, 0, 2, 5.8))
sketch15.addConstraint(Sketcher.Constraint("DistanceX", -1, 1, 0, 2, 22.05))
groove = body3.newObject("PartDesign::Groove", "Groove")
groove.Profile = sketch15
groove.ReferenceAxis = (sketch15, ["Axis0"])
groove.Angle = 360
doc.recompute()

linearpattern2 = body3.newObject("PartDesign::LinearPattern", "LinearPattern001")
linearpattern2.Originals = [groove]
linearpattern2.Direction = (doc.getObject("X_Axis002"), [""])
linearpattern2.Mode = "offset"
linearpattern2.Offset = 93.3
linearpattern2.Occurrences = 2
body3.Tip = linearpattern2
doc.recompute()

datumline = body3.newObject("PartDesign::Line", "DatumLine")
datumline.Placement = App.Placement(Vector(0, 0, 0), App.Rotation(Vector(0, 0, 1), Vector(0.859437443, -0.511240923, 0)))
linearpattern3 = body3.newObject("PartDesign::LinearPattern", "LinearPattern002")
linearpattern3.Originals = [groove]
linearpattern3.Direction = (datumline, [""])
linearpattern3.Mode = "offset"
linearpattern3.Offset = 108.559385
linearpattern3.Occurrences = 2
body3.Tip = linearpattern3
doc.recompute()

linearpattern4 = body3.newObject("PartDesign::LinearPattern", "LinearPattern003")
linearpattern4.Originals = [groove]
linearpattern4.Direction = (doc.getObject("Y_Axis002"), [""])
linearpattern4.Mode = "offset"
linearpattern4.Offset = 55.5
linearpattern4.Occurrences = 2
linearpattern4.Reversed = True
body3.Tip = linearpattern4
body4 = doc.addObject("PartDesign::Body", "Body003")

sketch16 = body4.newObject("Sketcher::SketchObject", "Sketch015")
sketch16.AttachmentSupport = (doc.getObject("XY_Plane003"), [""])
sketch16.MapMode = "FlatFace"
sketch16.AttachmentOffset = App.Placement(Vector(0, 0, 5.8), App.Rotation())
sketch16.addGeometry(Part.LineSegment(Vector(-67, 14, 0), Vector(-67, -26, 0)), False)
sketch16.addGeometry(Part.LineSegment(Vector(-67, -26, 0), Vector(32, -26, 0)), False)
sketch16.addGeometry(Part.LineSegment(Vector(32, -26, 0), Vector(32, 14, 0)), False)
sketch16.addGeometry(Part.LineSegment(Vector(32, 14, 0), Vector(-67, 14, 0)), False)
sketch16.addConstraint(Sketcher.Constraint("Coincident", 0, 2, 1, 1))
sketch16.addConstraint(Sketcher.Constraint("Coincident", 1, 2, 2, 1))
sketch16.addConstraint(Sketcher.Constraint("Coincident", 2, 2, 3, 1))
sketch16.addConstraint(Sketcher.Constraint("Coincident", 3, 2, 0, 1))
sketch16.addConstraint(Sketcher.Constraint("Vertical", 0))
sketch16.addConstraint(Sketcher.Constraint("Horizontal", 1))
sketch16.addConstraint(Sketcher.Constraint("Vertical", 2))
sketch16.addConstraint(Sketcher.Constraint("Horizontal", 3))
sketch16.addConstraint(Sketcher.Constraint("DistanceY", 0, 2, 0, 1, 40.0))
sketch16.addConstraint(Sketcher.Constraint("DistanceX", 1, 1, 1, 2, 98.2))
sketch16.addConstraint(Sketcher.Constraint("DistanceX", 0, 2, -1, 1, 66.6))
sketch16.addConstraint(Sketcher.Constraint("DistanceY", 0, 2, -1, 1, 25.7))
pad13 = body4.newObject("PartDesign::Pad", "Pad012")
pad13.Profile = sketch16
pad13.Length = 9.7

sketch17 = body4.newObject("Sketcher::SketchObject", "Sketch016")
sketch17.AttachmentSupport = (doc.getObject("XY_Plane003"), [""])
sketch17.MapMode = "FlatFace"
sketch17.AttachmentOffset = App.Placement(Vector(0, 0, 15.5), App.Rotation())
sketch17.addGeometry(Part.LineSegment(Vector(-56, 7, 0), Vector(-56, -19, 0)), False)
sketch17.addGeometry(Part.LineSegment(Vector(-56, -19, 0), Vector(20, -19, 0)), False)
sketch17.addGeometry(Part.LineSegment(Vector(20, -19, 0), Vector(20, 7, 0)), False)
sketch17.addGeometry(Part.LineSegment(Vector(20, 7, 0), Vector(-56, 7, 0)), False)
sketch17.addConstraint(Sketcher.Constraint("Coincident", 0, 2, 1, 1))
sketch17.addConstraint(Sketcher.Constraint("Coincident", 1, 2, 2, 1))
sketch17.addConstraint(Sketcher.Constraint("Coincident", 2, 2, 3, 1))
sketch17.addConstraint(Sketcher.Constraint("Coincident", 3, 2, 0, 1))
sketch17.addConstraint(Sketcher.Constraint("Vertical", 0))
sketch17.addConstraint(Sketcher.Constraint("Horizontal", 1))
sketch17.addConstraint(Sketcher.Constraint("Vertical", 2))
sketch17.addConstraint(Sketcher.Constraint("Horizontal", 3))
sketch17.addConstraint(Sketcher.Constraint("DistanceX", 1, 1, 1, 2, 76.0))
sketch17.addConstraint(Sketcher.Constraint("DistanceY", 0, 2, 0, 1, 26.0))
sketch17.addConstraint(Sketcher.Constraint("DistanceX", 0, 2, -1, 1, 55.5))
sketch17.addConstraint(Sketcher.Constraint("DistanceY", 0, 2, -1, 1, 18.7))
pocket2 = body4.newObject("PartDesign::Pocket", "Pocket001")
pocket2.Profile = sketch17
pocket2.Length = 1
doc.recompute()

fillet = body4.newObject("PartDesign::Fillet", "Fillet")
fillet.Base = (pocket2, edges_at(pocket2, [
    (-55.5, -18.7, 15),
    (-55.5, 7.3, 15),
    (20.5, 7.3, 15),
    (20.5, -18.7, 15),
]))
fillet.Radius = 1

doc.recompute()
